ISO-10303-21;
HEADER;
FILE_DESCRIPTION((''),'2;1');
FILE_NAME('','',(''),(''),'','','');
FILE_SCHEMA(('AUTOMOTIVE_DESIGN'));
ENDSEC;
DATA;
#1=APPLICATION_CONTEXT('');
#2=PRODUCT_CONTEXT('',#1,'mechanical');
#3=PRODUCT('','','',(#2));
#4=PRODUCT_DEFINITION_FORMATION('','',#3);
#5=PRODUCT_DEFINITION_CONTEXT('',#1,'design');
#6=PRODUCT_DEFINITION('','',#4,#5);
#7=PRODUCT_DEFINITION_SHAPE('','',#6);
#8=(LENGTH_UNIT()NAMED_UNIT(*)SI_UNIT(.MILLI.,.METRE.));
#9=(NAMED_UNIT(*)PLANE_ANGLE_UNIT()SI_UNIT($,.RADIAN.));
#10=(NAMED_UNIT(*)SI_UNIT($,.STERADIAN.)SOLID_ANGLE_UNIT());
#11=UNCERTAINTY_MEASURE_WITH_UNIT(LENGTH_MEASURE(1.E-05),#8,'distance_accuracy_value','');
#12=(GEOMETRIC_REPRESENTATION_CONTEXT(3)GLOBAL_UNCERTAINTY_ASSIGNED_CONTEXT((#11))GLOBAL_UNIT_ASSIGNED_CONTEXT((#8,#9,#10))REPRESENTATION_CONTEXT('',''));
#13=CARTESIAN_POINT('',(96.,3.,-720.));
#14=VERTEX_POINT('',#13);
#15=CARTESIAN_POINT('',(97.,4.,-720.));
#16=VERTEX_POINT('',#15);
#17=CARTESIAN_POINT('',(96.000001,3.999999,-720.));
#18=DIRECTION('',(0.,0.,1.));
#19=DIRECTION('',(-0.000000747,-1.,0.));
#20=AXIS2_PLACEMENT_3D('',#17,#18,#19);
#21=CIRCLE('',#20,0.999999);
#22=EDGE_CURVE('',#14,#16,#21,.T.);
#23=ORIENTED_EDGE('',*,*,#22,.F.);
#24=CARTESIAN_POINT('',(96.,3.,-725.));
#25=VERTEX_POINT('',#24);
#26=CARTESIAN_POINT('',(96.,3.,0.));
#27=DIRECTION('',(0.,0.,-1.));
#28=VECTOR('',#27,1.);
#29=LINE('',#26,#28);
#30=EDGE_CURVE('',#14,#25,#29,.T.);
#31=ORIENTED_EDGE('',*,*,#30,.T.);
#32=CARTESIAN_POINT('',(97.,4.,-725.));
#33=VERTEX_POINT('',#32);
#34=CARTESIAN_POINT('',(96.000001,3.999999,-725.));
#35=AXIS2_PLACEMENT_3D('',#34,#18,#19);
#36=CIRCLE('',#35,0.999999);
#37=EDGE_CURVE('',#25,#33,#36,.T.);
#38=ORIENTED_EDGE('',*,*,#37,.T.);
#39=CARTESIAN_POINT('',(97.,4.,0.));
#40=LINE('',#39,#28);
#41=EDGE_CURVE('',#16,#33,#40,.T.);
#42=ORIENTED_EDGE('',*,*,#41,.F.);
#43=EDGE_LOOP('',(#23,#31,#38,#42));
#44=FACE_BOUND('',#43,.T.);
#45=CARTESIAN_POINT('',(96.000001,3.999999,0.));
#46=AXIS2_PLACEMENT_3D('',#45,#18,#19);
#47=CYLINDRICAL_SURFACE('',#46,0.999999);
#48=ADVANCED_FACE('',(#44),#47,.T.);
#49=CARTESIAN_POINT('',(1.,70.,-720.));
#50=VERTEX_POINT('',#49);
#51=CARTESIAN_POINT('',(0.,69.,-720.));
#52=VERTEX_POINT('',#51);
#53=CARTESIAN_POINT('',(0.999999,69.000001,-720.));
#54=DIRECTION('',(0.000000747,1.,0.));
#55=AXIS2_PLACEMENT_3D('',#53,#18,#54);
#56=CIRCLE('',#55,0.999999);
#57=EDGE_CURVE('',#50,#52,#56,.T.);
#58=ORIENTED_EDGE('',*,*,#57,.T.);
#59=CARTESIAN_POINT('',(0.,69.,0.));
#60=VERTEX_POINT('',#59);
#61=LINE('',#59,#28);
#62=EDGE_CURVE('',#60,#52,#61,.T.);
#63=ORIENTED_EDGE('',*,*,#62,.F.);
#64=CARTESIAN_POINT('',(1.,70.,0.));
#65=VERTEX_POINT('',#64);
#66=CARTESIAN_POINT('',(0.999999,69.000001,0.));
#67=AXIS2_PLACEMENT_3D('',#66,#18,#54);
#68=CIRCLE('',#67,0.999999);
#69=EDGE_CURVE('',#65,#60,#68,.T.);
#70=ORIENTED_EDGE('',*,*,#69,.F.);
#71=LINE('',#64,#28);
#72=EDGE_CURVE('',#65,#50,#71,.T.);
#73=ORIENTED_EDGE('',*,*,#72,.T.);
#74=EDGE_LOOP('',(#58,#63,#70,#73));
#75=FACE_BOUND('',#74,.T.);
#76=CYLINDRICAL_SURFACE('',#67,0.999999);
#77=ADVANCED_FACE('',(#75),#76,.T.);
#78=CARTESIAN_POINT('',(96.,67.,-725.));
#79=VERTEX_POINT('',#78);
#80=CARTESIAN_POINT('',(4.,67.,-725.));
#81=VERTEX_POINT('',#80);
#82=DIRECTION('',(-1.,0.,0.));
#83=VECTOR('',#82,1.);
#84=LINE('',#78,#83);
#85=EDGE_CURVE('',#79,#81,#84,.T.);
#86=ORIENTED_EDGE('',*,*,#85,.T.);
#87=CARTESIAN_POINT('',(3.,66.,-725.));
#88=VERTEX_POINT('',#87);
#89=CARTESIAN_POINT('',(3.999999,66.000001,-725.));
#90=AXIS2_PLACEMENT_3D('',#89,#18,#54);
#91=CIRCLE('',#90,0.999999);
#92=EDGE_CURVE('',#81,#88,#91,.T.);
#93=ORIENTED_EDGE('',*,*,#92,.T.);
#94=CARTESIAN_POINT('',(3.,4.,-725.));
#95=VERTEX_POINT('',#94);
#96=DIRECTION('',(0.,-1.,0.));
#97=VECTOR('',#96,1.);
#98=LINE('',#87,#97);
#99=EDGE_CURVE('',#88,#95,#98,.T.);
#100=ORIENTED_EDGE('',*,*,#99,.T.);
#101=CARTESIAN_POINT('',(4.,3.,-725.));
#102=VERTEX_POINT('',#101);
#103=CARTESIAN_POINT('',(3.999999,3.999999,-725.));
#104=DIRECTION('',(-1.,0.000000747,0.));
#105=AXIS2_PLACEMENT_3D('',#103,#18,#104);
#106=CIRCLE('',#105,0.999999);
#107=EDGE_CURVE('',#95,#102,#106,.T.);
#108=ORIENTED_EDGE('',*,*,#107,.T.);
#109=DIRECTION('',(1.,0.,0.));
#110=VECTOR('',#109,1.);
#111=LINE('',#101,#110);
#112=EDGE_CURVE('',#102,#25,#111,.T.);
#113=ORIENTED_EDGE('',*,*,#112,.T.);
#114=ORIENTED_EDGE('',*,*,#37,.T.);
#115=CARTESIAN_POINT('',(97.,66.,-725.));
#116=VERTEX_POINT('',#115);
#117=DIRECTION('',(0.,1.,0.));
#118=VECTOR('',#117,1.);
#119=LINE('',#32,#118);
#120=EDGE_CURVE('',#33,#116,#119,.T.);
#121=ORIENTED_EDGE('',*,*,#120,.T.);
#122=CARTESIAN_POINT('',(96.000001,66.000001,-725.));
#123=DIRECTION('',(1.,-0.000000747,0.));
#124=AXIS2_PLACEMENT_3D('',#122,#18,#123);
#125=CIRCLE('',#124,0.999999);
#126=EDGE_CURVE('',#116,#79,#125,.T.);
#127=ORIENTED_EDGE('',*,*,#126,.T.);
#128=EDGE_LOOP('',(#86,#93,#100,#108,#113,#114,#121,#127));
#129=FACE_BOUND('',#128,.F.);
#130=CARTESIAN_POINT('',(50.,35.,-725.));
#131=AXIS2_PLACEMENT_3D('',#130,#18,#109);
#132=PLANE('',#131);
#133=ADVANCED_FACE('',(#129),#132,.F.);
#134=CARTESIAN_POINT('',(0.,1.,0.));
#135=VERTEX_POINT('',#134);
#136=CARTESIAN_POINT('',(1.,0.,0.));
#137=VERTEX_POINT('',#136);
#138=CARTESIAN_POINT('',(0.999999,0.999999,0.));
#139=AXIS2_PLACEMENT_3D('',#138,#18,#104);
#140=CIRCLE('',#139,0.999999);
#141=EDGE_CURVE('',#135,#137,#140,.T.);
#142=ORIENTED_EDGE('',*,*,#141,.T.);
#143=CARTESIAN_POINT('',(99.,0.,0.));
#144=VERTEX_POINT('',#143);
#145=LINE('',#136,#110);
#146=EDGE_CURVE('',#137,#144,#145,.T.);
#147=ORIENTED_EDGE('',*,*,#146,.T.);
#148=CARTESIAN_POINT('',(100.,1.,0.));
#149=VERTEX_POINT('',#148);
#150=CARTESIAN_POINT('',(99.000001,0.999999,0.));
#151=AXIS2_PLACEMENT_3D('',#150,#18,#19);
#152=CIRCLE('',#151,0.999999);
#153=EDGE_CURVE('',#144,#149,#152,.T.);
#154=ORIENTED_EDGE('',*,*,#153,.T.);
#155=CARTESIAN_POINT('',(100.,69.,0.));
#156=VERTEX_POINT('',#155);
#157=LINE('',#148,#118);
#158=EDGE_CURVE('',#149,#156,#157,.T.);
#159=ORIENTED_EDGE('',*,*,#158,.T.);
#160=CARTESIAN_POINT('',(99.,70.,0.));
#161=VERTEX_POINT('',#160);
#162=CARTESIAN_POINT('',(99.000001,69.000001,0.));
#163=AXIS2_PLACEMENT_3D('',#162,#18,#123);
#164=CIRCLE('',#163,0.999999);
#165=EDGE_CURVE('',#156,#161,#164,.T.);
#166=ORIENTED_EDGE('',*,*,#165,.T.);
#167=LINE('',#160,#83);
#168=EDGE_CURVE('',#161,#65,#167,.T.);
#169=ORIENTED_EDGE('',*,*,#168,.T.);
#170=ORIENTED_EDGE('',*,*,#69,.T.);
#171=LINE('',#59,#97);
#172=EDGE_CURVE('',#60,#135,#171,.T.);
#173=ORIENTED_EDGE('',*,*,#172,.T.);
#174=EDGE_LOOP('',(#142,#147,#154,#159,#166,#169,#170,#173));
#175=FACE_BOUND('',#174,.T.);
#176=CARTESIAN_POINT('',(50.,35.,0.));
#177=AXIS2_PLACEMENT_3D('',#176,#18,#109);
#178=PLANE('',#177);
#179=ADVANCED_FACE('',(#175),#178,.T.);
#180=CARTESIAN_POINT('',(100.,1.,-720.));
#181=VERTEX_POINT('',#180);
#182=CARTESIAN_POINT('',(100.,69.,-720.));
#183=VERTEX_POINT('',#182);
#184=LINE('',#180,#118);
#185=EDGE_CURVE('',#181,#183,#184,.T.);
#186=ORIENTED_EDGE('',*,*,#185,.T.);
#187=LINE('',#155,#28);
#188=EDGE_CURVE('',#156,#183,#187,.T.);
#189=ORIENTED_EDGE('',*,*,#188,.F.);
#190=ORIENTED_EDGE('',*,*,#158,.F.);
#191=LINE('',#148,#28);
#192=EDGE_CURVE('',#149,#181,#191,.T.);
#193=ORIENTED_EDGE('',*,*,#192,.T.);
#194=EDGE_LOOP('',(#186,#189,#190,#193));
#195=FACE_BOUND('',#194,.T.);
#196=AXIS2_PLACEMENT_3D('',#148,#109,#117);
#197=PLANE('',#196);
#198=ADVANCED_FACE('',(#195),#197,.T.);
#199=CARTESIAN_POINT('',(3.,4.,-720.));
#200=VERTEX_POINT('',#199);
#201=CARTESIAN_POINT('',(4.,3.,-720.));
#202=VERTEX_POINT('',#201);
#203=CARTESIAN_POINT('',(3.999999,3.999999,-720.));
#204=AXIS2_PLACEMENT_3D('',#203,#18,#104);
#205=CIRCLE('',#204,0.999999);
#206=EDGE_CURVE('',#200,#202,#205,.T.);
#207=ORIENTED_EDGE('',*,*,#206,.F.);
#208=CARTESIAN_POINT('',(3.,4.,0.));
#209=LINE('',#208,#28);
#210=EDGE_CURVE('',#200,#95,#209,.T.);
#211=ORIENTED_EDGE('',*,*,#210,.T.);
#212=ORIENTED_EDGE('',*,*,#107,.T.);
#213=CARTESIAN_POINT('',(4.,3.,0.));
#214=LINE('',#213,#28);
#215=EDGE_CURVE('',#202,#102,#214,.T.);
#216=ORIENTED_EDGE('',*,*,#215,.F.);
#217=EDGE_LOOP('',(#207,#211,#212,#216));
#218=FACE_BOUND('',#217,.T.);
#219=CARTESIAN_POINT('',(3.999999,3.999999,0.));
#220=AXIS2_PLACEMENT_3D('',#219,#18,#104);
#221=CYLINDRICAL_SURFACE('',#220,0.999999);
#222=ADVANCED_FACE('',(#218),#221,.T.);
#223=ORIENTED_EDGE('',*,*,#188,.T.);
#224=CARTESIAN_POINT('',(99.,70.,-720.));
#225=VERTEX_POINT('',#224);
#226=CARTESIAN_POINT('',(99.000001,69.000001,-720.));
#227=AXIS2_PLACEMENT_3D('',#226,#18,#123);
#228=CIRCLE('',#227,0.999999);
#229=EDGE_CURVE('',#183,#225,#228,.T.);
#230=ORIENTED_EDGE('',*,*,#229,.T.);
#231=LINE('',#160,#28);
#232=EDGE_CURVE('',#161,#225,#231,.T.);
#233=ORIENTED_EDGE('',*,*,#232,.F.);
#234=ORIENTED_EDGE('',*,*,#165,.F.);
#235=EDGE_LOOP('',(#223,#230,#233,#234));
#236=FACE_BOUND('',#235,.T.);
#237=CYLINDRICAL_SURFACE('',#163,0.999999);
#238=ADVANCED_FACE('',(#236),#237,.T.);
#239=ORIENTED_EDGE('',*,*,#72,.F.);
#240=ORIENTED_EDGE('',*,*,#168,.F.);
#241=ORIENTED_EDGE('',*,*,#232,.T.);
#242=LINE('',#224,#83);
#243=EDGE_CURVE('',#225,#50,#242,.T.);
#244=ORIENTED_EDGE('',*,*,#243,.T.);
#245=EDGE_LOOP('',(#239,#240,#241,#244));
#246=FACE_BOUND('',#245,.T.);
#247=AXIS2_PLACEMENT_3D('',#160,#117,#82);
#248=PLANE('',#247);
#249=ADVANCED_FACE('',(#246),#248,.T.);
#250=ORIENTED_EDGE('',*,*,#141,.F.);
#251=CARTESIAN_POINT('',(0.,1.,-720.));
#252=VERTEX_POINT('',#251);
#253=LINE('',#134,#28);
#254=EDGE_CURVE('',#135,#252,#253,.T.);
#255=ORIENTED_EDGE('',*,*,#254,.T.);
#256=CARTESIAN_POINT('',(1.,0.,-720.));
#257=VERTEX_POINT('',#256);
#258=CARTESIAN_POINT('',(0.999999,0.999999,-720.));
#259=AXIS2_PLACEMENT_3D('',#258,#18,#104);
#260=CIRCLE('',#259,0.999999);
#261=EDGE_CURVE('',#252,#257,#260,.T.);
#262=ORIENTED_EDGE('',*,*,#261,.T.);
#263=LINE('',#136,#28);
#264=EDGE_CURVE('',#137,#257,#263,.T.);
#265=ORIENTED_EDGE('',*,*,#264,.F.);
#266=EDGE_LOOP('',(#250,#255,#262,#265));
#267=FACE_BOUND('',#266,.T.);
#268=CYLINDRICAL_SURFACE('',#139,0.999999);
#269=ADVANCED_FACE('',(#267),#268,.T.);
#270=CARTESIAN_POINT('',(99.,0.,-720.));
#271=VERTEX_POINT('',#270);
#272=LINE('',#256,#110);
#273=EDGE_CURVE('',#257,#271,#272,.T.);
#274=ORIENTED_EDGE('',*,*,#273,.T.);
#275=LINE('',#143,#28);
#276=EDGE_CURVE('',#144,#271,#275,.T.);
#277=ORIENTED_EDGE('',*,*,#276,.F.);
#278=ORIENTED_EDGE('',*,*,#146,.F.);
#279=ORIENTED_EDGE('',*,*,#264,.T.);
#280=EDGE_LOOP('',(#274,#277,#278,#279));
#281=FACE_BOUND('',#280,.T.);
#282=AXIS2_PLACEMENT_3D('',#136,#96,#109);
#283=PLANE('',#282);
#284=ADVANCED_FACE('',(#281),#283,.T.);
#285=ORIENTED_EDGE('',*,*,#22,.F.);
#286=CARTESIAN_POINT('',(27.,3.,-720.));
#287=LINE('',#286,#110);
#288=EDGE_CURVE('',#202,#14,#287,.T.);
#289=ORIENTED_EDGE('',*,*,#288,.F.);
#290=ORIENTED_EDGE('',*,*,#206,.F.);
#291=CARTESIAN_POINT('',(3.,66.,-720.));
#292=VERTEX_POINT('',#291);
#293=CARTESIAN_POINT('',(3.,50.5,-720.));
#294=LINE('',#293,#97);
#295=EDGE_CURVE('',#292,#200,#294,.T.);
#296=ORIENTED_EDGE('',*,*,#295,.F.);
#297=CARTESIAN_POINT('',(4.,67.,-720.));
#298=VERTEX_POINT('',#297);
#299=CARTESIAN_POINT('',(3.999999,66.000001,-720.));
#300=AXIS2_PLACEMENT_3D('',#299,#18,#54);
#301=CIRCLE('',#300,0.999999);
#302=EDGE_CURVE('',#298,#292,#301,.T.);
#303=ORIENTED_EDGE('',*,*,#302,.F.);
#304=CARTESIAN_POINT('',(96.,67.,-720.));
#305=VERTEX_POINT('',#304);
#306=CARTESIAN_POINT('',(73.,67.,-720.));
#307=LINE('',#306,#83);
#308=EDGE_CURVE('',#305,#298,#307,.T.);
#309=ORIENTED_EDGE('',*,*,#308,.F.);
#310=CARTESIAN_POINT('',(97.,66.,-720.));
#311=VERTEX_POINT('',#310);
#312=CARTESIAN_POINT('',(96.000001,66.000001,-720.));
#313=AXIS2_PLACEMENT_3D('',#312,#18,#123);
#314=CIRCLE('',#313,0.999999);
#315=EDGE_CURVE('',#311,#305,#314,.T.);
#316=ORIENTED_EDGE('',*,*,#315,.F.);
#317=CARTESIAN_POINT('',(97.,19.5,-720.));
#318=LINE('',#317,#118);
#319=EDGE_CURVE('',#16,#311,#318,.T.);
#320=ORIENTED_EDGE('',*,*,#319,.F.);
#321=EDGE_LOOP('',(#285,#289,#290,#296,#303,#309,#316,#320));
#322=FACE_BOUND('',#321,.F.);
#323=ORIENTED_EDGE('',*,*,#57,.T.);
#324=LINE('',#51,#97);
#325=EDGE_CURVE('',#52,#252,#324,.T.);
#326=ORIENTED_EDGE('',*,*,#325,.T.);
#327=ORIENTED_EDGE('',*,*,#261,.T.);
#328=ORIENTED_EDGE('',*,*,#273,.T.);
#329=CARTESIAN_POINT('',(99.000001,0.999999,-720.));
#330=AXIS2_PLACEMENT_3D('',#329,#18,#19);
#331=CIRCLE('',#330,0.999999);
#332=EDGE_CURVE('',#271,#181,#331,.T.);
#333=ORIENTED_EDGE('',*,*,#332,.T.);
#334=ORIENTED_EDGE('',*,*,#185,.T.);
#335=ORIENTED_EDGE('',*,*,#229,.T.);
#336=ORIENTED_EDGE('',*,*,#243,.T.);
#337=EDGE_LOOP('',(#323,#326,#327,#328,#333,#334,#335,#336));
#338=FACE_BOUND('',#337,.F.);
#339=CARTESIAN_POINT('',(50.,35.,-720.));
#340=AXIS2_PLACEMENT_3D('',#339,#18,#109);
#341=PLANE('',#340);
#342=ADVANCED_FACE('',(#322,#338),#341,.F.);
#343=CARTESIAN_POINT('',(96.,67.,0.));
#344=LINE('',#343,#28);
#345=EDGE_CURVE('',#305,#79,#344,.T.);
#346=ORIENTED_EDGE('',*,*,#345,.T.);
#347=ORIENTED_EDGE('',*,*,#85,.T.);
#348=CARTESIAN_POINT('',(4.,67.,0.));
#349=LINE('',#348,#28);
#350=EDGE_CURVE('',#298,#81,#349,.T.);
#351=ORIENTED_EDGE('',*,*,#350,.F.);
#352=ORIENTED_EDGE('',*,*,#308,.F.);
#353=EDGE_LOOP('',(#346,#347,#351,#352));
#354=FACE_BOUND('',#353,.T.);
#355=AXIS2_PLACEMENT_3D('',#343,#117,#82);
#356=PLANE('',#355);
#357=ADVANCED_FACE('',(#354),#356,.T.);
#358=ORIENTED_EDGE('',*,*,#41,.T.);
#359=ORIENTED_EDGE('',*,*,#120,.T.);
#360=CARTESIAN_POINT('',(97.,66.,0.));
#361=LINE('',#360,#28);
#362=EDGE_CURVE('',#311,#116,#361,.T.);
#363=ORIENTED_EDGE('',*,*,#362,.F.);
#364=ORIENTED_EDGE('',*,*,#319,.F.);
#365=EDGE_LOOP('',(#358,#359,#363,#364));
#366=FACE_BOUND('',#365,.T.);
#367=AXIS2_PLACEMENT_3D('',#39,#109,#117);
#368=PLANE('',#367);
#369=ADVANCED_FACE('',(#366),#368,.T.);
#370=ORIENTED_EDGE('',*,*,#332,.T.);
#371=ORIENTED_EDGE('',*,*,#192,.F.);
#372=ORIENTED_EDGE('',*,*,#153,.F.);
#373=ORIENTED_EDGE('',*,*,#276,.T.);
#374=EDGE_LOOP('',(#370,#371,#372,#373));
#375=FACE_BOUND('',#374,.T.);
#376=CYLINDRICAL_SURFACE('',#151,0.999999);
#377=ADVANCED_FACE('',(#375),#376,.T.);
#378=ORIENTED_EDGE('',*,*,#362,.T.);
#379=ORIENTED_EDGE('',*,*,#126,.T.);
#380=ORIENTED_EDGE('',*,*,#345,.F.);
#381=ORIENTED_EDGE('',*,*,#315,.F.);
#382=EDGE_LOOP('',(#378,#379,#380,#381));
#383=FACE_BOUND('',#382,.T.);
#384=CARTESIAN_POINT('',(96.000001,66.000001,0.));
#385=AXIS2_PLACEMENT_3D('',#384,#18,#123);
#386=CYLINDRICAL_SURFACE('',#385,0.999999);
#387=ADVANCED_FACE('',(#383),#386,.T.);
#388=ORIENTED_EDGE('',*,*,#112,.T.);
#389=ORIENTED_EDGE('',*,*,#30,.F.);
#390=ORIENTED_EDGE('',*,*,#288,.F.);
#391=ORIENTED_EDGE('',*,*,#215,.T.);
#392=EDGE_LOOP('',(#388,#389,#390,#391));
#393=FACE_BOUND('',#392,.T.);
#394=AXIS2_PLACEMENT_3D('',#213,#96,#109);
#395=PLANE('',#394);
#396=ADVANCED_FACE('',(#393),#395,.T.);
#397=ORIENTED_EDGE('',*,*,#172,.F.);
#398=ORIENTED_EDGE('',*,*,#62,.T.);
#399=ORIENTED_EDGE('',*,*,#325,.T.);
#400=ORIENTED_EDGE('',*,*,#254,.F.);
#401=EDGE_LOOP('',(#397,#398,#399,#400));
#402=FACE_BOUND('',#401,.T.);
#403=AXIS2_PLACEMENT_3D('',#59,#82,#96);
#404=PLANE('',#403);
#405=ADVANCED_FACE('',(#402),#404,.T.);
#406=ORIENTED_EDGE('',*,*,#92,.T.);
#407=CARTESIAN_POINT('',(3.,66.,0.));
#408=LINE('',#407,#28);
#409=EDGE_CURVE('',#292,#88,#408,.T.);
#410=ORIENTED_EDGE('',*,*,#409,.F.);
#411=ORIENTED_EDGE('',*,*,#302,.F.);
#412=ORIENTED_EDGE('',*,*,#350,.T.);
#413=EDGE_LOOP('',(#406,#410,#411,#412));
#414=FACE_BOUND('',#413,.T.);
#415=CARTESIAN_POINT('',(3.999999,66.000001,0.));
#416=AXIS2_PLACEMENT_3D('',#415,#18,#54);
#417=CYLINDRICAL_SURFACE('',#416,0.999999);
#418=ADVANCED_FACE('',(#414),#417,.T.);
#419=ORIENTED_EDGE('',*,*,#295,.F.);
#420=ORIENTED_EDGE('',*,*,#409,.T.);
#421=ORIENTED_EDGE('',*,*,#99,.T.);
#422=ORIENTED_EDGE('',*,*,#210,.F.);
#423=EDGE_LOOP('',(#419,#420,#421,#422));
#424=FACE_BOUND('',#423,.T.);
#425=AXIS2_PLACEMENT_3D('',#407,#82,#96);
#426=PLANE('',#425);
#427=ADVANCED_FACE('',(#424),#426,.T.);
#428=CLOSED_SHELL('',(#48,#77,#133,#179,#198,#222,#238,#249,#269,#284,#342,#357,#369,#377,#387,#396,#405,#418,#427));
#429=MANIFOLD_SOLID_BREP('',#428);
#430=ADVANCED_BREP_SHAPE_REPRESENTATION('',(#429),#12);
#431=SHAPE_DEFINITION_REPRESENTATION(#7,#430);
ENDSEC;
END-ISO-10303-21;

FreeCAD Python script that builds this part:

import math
import FreeCAD as App
import Part
import Sketcher

doc = App.newDocument("Part")
params = doc.addObject("Spreadsheet::Sheet", "Params")
for row, (alias, value) in enumerate([
    ("sketch1_radius", "0.999999 mm"),
    ("sketch1_width", "98 mm"),
    ("sketch1_height", "68 mm"),
    ("pad1_length", "720 mm"),
    ("sketch2_radius", "0.999999 mm"),
    ("sketch2_width", "92 mm"),
    ("sketch2_height", "62 mm"),
    ("pad2_length", "725 mm"),
], start=1):
    params.set(f"A{row}", alias)
    params.set(f"B{row}", "=" + value)
    params.setAlias(f"B{row}", alias)

body = doc.addObject("PartDesign::Body", "Body")

sketch1 = doc.addObject("Sketcher::SketchObject", "Sketch")
body.addObject(sketch1)
sketch1.AttachmentSupport = (doc.XY_Plane, [""])
sketch1.MapMode = "FlatFace"
sketch1.addGeometry(Part.ArcOfCircle(Part.Circle(App.Vector(1, 1, 0), App.Vector(0, 0, 1), 1), math.radians(180), math.radians(270)), False)
sketch1.addGeometry(Part.LineSegment(App.Vector(1, 0, 0), App.Vector(99, 0, 0)), False)
sketch1.addGeometry(Part.ArcOfCircle(Part.Circle(App.Vector(99, 1, 0), App.Vector(0, 0, 1), 1), math.radians(-90), math.radians(0)), False)
sketch1.addGeometry(Part.LineSegment(App.Vector(100, 1, 0), App.Vector(100, 69, 0)), False)
sketch1.addGeometry(Part.ArcOfCircle(Part.Circle(App.Vector(99, 69, 0), App.Vector(0, 0, 1), 1), math.radians(0), math.radians(90)), False)
sketch1.addGeometry(Part.LineSegment(App.Vector(99, 70, 0), App.Vector(1, 70, 0)), False)
sketch1.addGeometry(Part.ArcOfCircle(Part.Circle(App.Vector(1, 69, 0), App.Vector(0, 0, 1), 1), math.radians(90), math.radians(180)), False)
sketch1.addGeometry(Part.LineSegment(App.Vector(0, 69, 0), App.Vector(0, 1, 0)), False)
sketch1.addConstraint(Sketcher.Constraint("Tangent", 0, 2, 1, 1))
sketch1.addConstraint(Sketcher.Constraint("Tangent", 1, 2, 2, 1))
sketch1.addConstraint(Sketcher.Constraint("Tangent", 2, 2, 3, 1))
sketch1.addConstraint(Sketcher.Constraint("Tangent", 3, 2, 4, 1))
sketch1.addConstraint(Sketcher.Constraint("Tangent", 4, 2, 5, 1))
sketch1.addConstraint(Sketcher.Constraint("Tangent", 5, 2, 6, 1))
sketch1.addConstraint(Sketcher.Constraint("Tangent", 6, 2, 7, 1))
sketch1.addConstraint(Sketcher.Constraint("Tangent", 7, 2, 0, 1))
sketch1.addConstraint(Sketcher.Constraint("Horizontal", 1))
sketch1.addConstraint(Sketcher.Constraint("Vertical", 3))
sketch1.addConstraint(Sketcher.Constraint("Horizontal", 5))
sketch1.addConstraint(Sketcher.Constraint("Vertical", 7))
sketch1.addConstraint(Sketcher.Constraint("Equal", 0, 2))
sketch1.addConstraint(Sketcher.Constraint("Equal", 2, 4))
sketch1.addConstraint(Sketcher.Constraint("Equal", 4, 6))
sketch1.addConstraint(Sketcher.Constraint("PointOnObject", 0, 2, -1))
sketch1.addConstraint(Sketcher.Constraint("PointOnObject", 6, 2, -2))
sketch1.addConstraint(Sketcher.Constraint("Radius", 0, 0.999999))
sketch1.addConstraint(Sketcher.Constraint("DistanceX", 1, 1, 1, 2, 98.0))
sketch1.addConstraint(Sketcher.Constraint("DistanceY", 3, 1, 3, 2, 68.0))
sketch1.setExpression("Constraints[17]", "Params.sketch1_radius")
sketch1.setExpression("Constraints[18]", "Params.sketch1_width")
sketch1.setExpression("Constraints[19]", "Params.sketch1_height")
pad1 = doc.addObject("PartDesign::Pad", "Pad")
body.addObject(pad1)
pad1.Profile = sketch1
pad1.setExpression("Length", "Params.pad1_length")
pad1.Reversed = True

sketch2 = doc.addObject("Sketcher::SketchObject", "Sketch001")
body.addObject(sketch2)
sketch2.AttachmentSupport = (doc.XY_Plane, [""])
sketch2.MapMode = "FlatFace"
sketch2.addGeometry(Part.ArcOfCircle(Part.Circle(App.Vector(4, 4, 0), App.Vector(0, 0, 1), 1), math.radians(180), math.radians(270)), False)
sketch2.addGeometry(Part.LineSegment(App.Vector(4, 3, 0), App.Vector(96, 3, 0)), False)
sketch2.addGeometry(Part.ArcOfCircle(Part.Circle(App.Vector(96, 4, 0), App.Vector(0, 0, 1), 1), math.radians(-90), math.radians(0)), False)
sketch2.addGeometry(Part.LineSegment(App.Vector(97, 4, 0), App.Vector(97, 66, 0)), False)
sketch2.addGeometry(Part.ArcOfCircle(Part.Circle(App.Vector(96, 66, 0), App.Vector(0, 0, 1), 1), math.radians(0), math.radians(90)), False)
sketch2.addGeometry(Part.LineSegment(App.Vector(96, 67, 0), App.Vector(4, 67, 0)), False)
sketch2.addGeometry(Part.ArcOfCircle(Part.Circle(App.Vector(4, 66, 0), App.Vector(0, 0, 1), 1), math.radians(90), math.radians(180)), False)
sketch2.addGeometry(Part.LineSegment(App.Vector(3, 66, 0), App.Vector(3, 4, 0)), False)
sketch2.addConstraint(Sketcher.Constraint("Tangent", 0, 2, 1, 1))
sketch2.addConstraint(Sketcher.Constraint("Tangent", 1, 2, 2, 1))
sketch2.addConstraint(Sketcher.Constraint("Tangent", 2, 2, 3, 1))
sketch2.addConstraint(Sketcher.Constraint("Tangent", 3, 2, 4, 1))
sketch2.addConstraint(Sketcher.Constraint("Tangent", 4, 2, 5, 1))
sketch2.addConstraint(Sketcher.Constraint("Tangent", 5, 2, 6, 1))
sketch2.addConstraint(Sketcher.Constraint("Tangent", 6, 2, 7, 1))
sketch2.addConstraint(Sketcher.Constraint("Tangent", 7, 2, 0, 1))
sketch2.addConstraint(Sketcher.Constraint("Horizontal", 1))
sketch2.addConstraint(Sketcher.Constraint("Vertical", 3))
sketch2.addConstraint(Sketcher.Constraint("Horizontal", 5))
sketch2.addConstraint(Sketcher.Constraint("Vertical", 7))
sketch2.addConstraint(Sketcher.Constraint("Equal", 0, 2))
sketch2.addConstraint(Sketcher.Constraint("Equal", 2, 4))
sketch2.addConstraint(Sketcher.Constraint("Equal", 4, 6))
sketch2.addConstraint(Sketcher.Constraint("Radius", 0, 0.999999))
sketch2.addConstraint(Sketcher.Constraint("DistanceX", 1, 1, 1, 2, 92.0))
sketch2.addConstraint(Sketcher.Constraint("DistanceY", 3, 1, 3, 2, 62.0))
sketch2.addConstraint(Sketcher.Constraint("DistanceX", -1, 1, 0, 3, 3.999999))
sketch2.addConstraint(Sketcher.Constraint("DistanceY", -1, 1, 0, 3, 3.999999))
sketch2.setExpression("Constraints[15]", "Params.sketch2_radius")
sketch2.setExpression("Constraints[16]", "Params.sketch2_width")
sketch2.setExpression("Constraints[17]", "Params.sketch2_height")
pad2 = doc.addObject("PartDesign::Pad", "Pad001")
body.addObject(pad2)
pad2.Profile = sketch2
pad2.setExpression("Length", "Params.pad2_length")
pad2.Reversed = True

doc.recompute()
